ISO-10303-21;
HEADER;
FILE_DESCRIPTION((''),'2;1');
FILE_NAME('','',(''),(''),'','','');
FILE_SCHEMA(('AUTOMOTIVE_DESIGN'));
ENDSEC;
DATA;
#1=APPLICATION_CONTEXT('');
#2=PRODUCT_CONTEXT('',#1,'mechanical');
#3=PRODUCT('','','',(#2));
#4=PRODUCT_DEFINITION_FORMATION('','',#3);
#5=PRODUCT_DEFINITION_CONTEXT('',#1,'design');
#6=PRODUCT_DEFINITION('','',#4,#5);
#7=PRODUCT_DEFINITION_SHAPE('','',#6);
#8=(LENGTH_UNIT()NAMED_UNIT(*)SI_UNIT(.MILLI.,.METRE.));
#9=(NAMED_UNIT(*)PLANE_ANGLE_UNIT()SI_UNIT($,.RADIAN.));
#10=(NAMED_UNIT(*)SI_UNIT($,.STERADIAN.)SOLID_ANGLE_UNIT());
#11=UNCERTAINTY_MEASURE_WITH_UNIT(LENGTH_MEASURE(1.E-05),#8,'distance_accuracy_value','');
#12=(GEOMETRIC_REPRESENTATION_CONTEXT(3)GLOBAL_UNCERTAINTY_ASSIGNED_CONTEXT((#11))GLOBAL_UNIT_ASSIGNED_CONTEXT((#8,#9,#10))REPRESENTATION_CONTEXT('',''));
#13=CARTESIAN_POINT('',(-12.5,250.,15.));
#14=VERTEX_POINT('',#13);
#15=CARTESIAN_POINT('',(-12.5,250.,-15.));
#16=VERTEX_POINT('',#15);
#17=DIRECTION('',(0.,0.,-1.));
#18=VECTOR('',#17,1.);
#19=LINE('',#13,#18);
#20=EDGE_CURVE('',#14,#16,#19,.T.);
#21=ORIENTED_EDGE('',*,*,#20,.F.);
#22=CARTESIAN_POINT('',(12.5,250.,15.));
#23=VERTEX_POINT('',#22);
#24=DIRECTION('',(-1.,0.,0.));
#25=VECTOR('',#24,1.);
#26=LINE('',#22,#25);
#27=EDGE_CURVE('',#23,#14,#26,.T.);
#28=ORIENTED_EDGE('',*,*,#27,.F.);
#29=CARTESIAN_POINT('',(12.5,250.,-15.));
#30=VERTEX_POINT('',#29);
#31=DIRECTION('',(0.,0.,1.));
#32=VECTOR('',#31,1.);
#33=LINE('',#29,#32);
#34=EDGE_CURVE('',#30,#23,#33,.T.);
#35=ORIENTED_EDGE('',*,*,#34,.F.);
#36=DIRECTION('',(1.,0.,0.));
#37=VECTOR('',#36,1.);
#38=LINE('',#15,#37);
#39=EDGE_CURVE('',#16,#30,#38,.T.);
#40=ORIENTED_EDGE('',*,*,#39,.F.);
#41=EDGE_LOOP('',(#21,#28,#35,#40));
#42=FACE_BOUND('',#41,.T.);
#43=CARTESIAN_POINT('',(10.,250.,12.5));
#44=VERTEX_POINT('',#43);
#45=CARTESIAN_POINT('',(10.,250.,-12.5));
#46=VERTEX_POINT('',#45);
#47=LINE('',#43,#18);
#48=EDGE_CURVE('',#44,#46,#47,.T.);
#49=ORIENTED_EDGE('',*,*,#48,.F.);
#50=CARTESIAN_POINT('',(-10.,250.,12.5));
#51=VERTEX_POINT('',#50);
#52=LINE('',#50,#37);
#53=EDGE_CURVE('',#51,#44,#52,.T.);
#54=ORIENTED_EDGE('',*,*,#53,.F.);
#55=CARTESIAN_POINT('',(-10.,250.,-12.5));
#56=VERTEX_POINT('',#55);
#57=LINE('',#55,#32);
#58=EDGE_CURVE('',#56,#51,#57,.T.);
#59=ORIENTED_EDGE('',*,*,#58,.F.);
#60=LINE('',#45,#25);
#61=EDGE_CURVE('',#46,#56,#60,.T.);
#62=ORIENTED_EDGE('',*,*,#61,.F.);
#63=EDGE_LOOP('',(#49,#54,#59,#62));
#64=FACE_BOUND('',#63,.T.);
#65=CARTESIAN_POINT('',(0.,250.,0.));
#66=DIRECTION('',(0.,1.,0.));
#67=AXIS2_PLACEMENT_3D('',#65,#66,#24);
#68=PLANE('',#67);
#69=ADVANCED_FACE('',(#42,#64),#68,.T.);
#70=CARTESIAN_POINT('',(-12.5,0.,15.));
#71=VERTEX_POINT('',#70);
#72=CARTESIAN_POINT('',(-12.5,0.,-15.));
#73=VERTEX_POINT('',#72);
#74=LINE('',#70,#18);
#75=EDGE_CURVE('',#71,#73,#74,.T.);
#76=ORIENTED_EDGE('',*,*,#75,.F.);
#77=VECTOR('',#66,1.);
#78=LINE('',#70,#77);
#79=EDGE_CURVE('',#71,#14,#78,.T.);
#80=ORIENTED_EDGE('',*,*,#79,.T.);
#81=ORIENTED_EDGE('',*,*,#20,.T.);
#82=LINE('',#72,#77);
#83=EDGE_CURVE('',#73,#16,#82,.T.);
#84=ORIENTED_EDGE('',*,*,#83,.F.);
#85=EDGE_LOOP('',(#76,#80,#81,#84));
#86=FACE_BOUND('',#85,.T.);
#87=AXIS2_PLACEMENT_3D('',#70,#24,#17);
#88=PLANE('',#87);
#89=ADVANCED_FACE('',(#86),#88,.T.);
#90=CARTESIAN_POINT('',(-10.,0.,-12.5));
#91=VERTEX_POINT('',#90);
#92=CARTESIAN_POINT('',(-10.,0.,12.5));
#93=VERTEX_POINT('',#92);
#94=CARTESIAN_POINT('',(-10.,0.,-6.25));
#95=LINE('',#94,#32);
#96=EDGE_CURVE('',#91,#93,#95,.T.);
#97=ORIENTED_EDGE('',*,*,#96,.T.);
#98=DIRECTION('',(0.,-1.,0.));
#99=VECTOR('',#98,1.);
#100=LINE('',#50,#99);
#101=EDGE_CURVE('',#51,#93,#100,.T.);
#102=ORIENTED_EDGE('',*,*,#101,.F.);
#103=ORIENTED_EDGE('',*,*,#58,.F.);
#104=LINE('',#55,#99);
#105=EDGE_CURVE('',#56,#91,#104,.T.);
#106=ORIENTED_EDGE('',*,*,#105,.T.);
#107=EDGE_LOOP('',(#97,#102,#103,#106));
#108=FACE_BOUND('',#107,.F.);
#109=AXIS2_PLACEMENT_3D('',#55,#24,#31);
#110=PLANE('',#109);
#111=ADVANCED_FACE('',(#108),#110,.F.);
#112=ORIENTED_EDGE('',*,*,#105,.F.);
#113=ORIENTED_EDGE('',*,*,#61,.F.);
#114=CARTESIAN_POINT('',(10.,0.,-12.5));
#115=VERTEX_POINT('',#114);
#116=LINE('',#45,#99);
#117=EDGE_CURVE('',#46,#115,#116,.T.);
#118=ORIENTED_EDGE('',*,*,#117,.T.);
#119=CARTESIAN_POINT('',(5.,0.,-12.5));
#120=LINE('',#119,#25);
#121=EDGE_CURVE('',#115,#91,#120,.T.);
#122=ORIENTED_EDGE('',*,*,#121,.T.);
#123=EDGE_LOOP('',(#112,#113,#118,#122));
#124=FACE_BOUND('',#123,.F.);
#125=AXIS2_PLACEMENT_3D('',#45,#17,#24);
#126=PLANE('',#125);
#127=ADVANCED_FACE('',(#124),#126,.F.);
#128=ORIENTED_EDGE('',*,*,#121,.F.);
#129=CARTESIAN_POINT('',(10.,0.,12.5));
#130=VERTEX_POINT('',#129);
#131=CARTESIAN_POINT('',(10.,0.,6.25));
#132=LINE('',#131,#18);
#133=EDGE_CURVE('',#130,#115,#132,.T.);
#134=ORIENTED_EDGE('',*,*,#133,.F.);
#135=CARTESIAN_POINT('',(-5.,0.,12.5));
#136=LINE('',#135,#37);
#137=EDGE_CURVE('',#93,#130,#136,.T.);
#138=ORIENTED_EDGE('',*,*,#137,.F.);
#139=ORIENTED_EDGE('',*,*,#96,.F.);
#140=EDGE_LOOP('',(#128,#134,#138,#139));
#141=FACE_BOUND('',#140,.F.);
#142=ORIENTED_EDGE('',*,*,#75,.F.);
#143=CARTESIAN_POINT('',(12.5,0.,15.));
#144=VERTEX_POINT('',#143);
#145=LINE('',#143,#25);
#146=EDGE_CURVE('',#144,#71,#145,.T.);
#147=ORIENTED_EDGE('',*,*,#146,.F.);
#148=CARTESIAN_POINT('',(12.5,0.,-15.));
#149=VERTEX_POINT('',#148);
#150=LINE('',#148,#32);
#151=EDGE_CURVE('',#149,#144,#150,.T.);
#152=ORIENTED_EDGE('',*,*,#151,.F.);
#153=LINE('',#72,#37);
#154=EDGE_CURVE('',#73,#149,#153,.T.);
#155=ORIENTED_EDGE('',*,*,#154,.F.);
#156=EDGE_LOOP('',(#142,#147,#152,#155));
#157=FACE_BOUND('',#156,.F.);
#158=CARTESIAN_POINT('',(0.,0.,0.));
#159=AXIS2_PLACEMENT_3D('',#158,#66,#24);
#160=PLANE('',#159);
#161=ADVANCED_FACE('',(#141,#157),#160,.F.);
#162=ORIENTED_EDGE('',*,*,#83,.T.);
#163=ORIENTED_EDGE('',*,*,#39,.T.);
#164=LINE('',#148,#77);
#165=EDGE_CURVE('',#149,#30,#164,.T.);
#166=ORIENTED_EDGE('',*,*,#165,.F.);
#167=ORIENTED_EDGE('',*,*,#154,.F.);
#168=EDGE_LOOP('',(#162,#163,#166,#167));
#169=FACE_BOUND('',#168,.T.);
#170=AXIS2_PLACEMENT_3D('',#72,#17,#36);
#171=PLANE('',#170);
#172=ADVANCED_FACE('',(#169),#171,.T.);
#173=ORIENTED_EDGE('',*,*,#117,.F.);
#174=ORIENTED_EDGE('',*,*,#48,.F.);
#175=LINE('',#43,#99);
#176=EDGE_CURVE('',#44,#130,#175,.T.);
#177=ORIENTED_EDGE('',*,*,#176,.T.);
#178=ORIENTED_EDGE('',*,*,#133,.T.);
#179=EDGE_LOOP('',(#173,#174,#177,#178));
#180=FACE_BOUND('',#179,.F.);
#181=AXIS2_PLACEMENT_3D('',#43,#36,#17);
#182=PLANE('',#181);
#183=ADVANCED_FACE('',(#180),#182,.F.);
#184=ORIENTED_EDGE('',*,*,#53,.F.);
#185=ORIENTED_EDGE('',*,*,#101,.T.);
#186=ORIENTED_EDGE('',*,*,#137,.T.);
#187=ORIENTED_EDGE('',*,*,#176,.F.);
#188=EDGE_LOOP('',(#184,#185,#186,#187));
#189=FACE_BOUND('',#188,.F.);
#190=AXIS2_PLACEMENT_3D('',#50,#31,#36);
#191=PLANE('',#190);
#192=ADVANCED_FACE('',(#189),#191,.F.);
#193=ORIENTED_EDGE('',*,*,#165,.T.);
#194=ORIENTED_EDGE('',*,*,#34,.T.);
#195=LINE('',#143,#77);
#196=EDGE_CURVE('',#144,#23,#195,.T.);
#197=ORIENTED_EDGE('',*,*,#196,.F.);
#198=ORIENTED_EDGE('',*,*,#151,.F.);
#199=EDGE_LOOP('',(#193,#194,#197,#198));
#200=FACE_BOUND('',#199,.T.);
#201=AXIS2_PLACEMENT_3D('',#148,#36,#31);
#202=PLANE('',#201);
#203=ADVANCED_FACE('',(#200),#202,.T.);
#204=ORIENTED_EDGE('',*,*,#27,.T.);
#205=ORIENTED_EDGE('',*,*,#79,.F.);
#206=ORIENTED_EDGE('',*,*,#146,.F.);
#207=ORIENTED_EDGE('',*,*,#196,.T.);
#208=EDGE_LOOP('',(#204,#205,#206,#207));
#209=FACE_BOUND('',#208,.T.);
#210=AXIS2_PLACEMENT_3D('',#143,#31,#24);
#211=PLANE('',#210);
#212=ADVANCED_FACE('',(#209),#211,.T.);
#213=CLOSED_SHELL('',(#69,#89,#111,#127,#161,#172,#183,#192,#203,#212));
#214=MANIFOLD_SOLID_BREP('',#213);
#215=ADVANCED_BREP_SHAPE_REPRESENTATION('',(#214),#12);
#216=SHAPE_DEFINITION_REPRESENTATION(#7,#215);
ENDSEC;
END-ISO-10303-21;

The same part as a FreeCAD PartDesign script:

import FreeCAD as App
import Part
import Sketcher
from FreeCAD import Vector

doc = App.newDocument("Part")
params = doc.addObject("Spreadsheet::Sheet", "Params")
for row, (alias, value) in enumerate([
    ("sketch1_width", "25 mm"),
    ("sketch1_height", "30 mm"),
    ("pad1_length", "250 mm"),
    ("sketch2_width", "20 mm"),
    ("sketch2_height", "25 mm"),
    ("pocket1_length", "600 mm"),
], start=1):
    params.set(f"A{row}", alias)
    params.set(f"B{row}", "=" + value)
    params.setAlias(f"B{row}", alias)

body = doc.addObject("PartDesign::Body", "Body")

# Sketch on XZ plane
sketch1 = doc.addObject("Sketcher::SketchObject", "Sketch")
body.addObject(sketch1)
sketch1.AttachmentSupport = (doc.XZ_Plane, [""])
sketch1.MapMode = "FlatFace"
sketch1.addGeometry([
    Part.LineSegment(Vector(-12, 15, 0), Vector(12, 15, 0)),
    Part.LineSegment(Vector(12, 15, 0), Vector(12, -15, 0)),
    Part.LineSegment(Vector(12, -15, 0), Vector(-12, -15, 0)),
    Part.LineSegment(Vector(-12, -15, 0), Vector(-12, 15, 0)),
], False)
sketch1.addConstraint([
    Sketcher.Constraint("Coincident", 0, 2, 1, 1),
    Sketcher.Constraint("Coincident", 1, 2, 2, 1),
    Sketcher.Constraint("Coincident", 2, 2, 3, 1),
    Sketcher.Constraint("Coincident", 3, 2, 0, 1),
    Sketcher.Constraint("Horizontal", 0),
    Sketcher.Constraint("Vertical", 1),
    Sketcher.Constraint("Horizontal", 2),
    Sketcher.Constraint("Vertical", 3),
    Sketcher.Constraint("Symmetric", 0, 2, 2, 2, -1, 1),
    Sketcher.Constraint("DistanceX", 0, 1, 0, 2, 25.0),
    Sketcher.Constraint("DistanceY", 1, 2, 1, 1, 30.0),
])
sketch1.setExpression("Constraints[9]", "Params.sketch1_width")
sketch1.setExpression("Constraints[10]", "Params.sketch1_height")
pad1 = doc.addObject("PartDesign::Pad", "Pad")
body.addObject(pad1)
pad1.Profile = sketch1
pad1.setExpression("Length", "Params.pad1_length")
pad1.Reversed = True

# Sketch on XZ plane
sketch2 = doc.addObject("Sketcher::SketchObject", "Sketch001")
body.addObject(sketch2)
sketch2.AttachmentSupport = (doc.XZ_Plane, [""])
sketch2.MapMode = "FlatFace"
sketch2.AttachmentOffset = App.Placement(Vector(0, 0, -250), App.Rotation())
sketch2.addGeometry([
    Part.LineSegment(Vector(-10, -12, 0), Vector(-10, 12, 0)),
    Part.LineSegment(Vector(-10, 12, 0), Vector(10, 12, 0)),
    Part.LineSegment(Vector(10, 12, 0), Vector(10, -12, 0)),
    Part.LineSegment(Vector(10, -12, 0), Vector(-10, -12, 0)),
], False)
sketch2.addConstraint([
    Sketcher.Constraint("Coincident", 0, 2, 1, 1),
    Sketcher.Constraint("Coincident", 1, 2, 2, 1),
    Sketcher.Constraint("Coincident", 2, 2, 3, 1),
    Sketcher.Constraint("Coincident", 3, 2, 0, 1),
    Sketcher.Constraint("Vertical", 0),
    Sketcher.Constraint("Horizontal", 1),
    Sketcher.Constraint("Vertical", 2),
    Sketcher.Constraint("Horizontal", 3),
    Sketcher.Constraint("Symmetric", 0, 2, 2, 2, -1, 1),
    Sketcher.Constraint("DistanceX", 1, 1, 1, 2, 20.0),
    Sketcher.Constraint("DistanceY", 0, 1, 0, 2, 25.0),
])
sketch2.setExpression("Constraints[9]", "Params.sketch2_width")
sketch2.setExpression("Constraints[10]", "Params.sketch2_height")
pocket1 = doc.addObject("PartDesign::Pocket", "Pocket")
body.addObject(pocket1)
pocket1.Profile = sketch2
pocket1.setExpression("Length", "Params.pocket1_length")
pocket1.Reversed = True

doc.recompute()
